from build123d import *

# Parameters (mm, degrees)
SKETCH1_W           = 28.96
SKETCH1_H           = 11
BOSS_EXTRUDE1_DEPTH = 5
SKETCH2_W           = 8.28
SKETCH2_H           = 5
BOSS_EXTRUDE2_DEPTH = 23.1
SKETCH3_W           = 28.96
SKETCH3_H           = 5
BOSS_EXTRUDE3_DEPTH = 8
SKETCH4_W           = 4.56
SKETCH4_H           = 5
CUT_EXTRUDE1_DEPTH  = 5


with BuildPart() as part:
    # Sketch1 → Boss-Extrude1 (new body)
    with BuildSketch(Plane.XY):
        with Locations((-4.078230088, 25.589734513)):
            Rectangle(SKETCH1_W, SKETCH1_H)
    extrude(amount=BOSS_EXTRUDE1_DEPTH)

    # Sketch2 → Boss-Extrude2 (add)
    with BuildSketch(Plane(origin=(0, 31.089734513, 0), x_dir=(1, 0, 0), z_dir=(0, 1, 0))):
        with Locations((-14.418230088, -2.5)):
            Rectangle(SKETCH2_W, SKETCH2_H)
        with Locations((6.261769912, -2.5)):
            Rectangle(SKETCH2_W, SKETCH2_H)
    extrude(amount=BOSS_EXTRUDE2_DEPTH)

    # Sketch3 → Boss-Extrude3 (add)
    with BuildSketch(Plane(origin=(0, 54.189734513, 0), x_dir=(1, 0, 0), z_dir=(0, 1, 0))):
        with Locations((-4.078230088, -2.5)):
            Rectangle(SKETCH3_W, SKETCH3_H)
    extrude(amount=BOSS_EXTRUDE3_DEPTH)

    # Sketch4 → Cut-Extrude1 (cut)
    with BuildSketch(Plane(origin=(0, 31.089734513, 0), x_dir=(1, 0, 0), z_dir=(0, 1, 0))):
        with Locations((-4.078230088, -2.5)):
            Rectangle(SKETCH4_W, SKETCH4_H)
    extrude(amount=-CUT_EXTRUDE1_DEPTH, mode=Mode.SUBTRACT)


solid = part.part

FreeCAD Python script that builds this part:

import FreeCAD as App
import Part
import Sketcher

V = App.Vector


def add_polygon(sketch, points):
    """Adds a closed chain of lines whose ends are joined by coincident constraints."""
    first, n = sketch.GeometryCount, len(points)
    for a, b in zip(points, points[1:] + points[:1]):
        sketch.addGeometry(Part.LineSegment(App.Vector(*a, 0), App.Vector(*b, 0)), False)
    for i in range(n):
        sketch.addConstraint(Sketcher.Constraint("Coincident", first + i, 2, first + (i + 1) % n, 1))

doc = App.newDocument("Part")
body = doc.addObject("PartDesign::Body", "Body")

# Sketch on XY plane
sketch1 = doc.addObject("Sketcher::SketchObject", "Sketch")
body.addObject(sketch1)
sketch1.AttachmentSupport = (doc.XY_Plane, [""])
sketch1.MapMode = "FlatFace"
add_polygon(sketch1, [(-19, 31), (-19, 20), (10, 20), (10, 31)])  # lines 0-3
sketch1.addConstraint([
    Sketcher.Constraint("Vertical", 0),
    Sketcher.Constraint("Horizontal", 1),
    Sketcher.Constraint("Vertical", 2),
    Sketcher.Constraint("Horizontal", 3),
    Sketcher.Constraint("DistanceY", 0, 2, 0, 1, 11.0),
    Sketcher.Constraint("DistanceX", 1, 1, 1, 2, 28.96),
    Sketcher.Constraint("DistanceX", 0, 2, -1, 1, 18.55823),
    Sketcher.Constraint("DistanceY", -1, 1, 0, 2, 20.089735),
])
pad1 = doc.addObject("PartDesign::Pad", "Pad")
body.addObject(pad1)
pad1.Profile = sketch1
pad1.Length = 5

# Sketch on XZ plane
sketch2 = doc.addObject("Sketcher::SketchObject", "Sketch001")
body.addObject(sketch2)
sketch2.AttachmentSupport = (doc.XZ_Plane, [""])
sketch2.MapMode = "FlatFace"
sketch2.AttachmentOffset = App.Placement(V(0, 0, -31.089735), App.Rotation())
add_polygon(sketch2, [(-19, 0), (-19, 5), (-10, 5), (-10, 0)])  # lines 0-3
add_polygon(sketch2, [(2, 0), (2, 5), (10, 5), (10, 0)])  # lines 4-7
sketch2.addConstraint([
    Sketcher.Constraint("Vertical", 0),
    Sketcher.Constraint("Horizontal", 1),
    Sketcher.Constraint("Vertical", 2),
    Sketcher.Constraint("Horizontal", 3),
    Sketcher.Constraint("Vertical", 4),
    Sketcher.Constraint("Horizontal", 5),
    Sketcher.Constraint("Vertical", 6),
    Sketcher.Constraint("Horizontal", 7),
    Sketcher.Constraint("PointOnObject", 2, 2, -1),
    Sketcher.Constraint("PointOnObject", 6, 2, -1),
    Sketcher.Constraint("Horizontal", 1, 2, 4, 2),
    Sketcher.Constraint("Equal", 3, 5),
    Sketcher.Constraint("DistanceY", 0, 1, 0, 2, 5.0),
    Sketcher.Constraint("DistanceX", 1, 1, 1, 2, 8.28),
    Sketcher.Constraint("DistanceX", 1, 2, 4, 2, 12.4),
    Sketcher.Constraint("DistanceX", 0, 2, -1, 1, 18.55823),
])
pad2 = doc.addObject("PartDesign::Pad", "Pad001")
body.addObject(pad2)
pad2.Profile = sketch2
pad2.Length = 23.1
pad2.Reversed = True

# Sketch on XZ plane
sketch3 = doc.addObject("Sketcher::SketchObject", "Sketch002")
body.addObject(sketch3)
sketch3.AttachmentSupport = (doc.XZ_Plane, [""])
sketch3.MapMode = "FlatFace"
sketch3.AttachmentOffset = App.Placement(V(0, 0, -54.189735), App.Rotation())
add_polygon(sketch3, [(-19, 0), (-19, 5), (10, 5), (10, 0)])  # lines 0-3
sketch3.addConstraint([
    Sketcher.Constraint("Vertical", 0),
    Sketcher.Constraint("Horizontal", 1),
    Sketcher.Constraint("Vertical", 2),
    Sketcher.Constraint("Horizontal", 3),
    Sketcher.Constraint("PointOnObject", 2, 2, -1),
    Sketcher.Constraint("DistanceY", 0, 1, 0, 2, 5.0),
    Sketcher.Constraint("DistanceX", 1, 1, 1, 2, 28.96),
    Sketcher.Constraint("DistanceX", 0, 2, -1, 1, 18.55823),
])
pad3 = doc.addObject("PartDesign::Pad", "Pad002")
body.addObject(pad3)
pad3.Profile = sketch3
pad3.Length = 8
pad3.Reversed = True

# Sketch on XZ plane
sketch4 = doc.addObject("Sketcher::SketchObject", "Sketch003")
body.addObject(sketch4)
sketch4.AttachmentSupport = (doc.XZ_Plane, [""])
sketch4.MapMode = "FlatFace"
sketch4.AttachmentOffset = App.Placement(V(0, 0, -31.089735), App.Rotation())
add_polygon(sketch4, [(-6.4, 0), (-6.4, 5), (-1.8, 5), (-1.8, 0)])  # lines 0-3
sketch4.addConstraint([
    Sketcher.Constraint("Vertical", 0),
    Sketcher.Constraint("Horizontal", 1),
    Sketcher.Constraint("Vertical", 2),
    Sketcher.Constraint("Horizontal", 3),
    Sketcher.Constraint("PointOnObject", 2, 2, -1),
    Sketcher.Constraint("DistanceY", 0, 1, 0, 2, 5.0),
    Sketcher.Constraint("DistanceX", 1, 1, 1, 2, 4.56),
    Sketcher.Constraint("DistanceX", 0, 2, -1, 1, 6.35823),
])
pocket1 = doc.addObject("PartDesign::Pocket", "Pocket")
body.addObject(pocket1)
pocket1.Profile = sketch4
pocket1.Length = 5
pocket1.Reversed = True

doc.recompute()
